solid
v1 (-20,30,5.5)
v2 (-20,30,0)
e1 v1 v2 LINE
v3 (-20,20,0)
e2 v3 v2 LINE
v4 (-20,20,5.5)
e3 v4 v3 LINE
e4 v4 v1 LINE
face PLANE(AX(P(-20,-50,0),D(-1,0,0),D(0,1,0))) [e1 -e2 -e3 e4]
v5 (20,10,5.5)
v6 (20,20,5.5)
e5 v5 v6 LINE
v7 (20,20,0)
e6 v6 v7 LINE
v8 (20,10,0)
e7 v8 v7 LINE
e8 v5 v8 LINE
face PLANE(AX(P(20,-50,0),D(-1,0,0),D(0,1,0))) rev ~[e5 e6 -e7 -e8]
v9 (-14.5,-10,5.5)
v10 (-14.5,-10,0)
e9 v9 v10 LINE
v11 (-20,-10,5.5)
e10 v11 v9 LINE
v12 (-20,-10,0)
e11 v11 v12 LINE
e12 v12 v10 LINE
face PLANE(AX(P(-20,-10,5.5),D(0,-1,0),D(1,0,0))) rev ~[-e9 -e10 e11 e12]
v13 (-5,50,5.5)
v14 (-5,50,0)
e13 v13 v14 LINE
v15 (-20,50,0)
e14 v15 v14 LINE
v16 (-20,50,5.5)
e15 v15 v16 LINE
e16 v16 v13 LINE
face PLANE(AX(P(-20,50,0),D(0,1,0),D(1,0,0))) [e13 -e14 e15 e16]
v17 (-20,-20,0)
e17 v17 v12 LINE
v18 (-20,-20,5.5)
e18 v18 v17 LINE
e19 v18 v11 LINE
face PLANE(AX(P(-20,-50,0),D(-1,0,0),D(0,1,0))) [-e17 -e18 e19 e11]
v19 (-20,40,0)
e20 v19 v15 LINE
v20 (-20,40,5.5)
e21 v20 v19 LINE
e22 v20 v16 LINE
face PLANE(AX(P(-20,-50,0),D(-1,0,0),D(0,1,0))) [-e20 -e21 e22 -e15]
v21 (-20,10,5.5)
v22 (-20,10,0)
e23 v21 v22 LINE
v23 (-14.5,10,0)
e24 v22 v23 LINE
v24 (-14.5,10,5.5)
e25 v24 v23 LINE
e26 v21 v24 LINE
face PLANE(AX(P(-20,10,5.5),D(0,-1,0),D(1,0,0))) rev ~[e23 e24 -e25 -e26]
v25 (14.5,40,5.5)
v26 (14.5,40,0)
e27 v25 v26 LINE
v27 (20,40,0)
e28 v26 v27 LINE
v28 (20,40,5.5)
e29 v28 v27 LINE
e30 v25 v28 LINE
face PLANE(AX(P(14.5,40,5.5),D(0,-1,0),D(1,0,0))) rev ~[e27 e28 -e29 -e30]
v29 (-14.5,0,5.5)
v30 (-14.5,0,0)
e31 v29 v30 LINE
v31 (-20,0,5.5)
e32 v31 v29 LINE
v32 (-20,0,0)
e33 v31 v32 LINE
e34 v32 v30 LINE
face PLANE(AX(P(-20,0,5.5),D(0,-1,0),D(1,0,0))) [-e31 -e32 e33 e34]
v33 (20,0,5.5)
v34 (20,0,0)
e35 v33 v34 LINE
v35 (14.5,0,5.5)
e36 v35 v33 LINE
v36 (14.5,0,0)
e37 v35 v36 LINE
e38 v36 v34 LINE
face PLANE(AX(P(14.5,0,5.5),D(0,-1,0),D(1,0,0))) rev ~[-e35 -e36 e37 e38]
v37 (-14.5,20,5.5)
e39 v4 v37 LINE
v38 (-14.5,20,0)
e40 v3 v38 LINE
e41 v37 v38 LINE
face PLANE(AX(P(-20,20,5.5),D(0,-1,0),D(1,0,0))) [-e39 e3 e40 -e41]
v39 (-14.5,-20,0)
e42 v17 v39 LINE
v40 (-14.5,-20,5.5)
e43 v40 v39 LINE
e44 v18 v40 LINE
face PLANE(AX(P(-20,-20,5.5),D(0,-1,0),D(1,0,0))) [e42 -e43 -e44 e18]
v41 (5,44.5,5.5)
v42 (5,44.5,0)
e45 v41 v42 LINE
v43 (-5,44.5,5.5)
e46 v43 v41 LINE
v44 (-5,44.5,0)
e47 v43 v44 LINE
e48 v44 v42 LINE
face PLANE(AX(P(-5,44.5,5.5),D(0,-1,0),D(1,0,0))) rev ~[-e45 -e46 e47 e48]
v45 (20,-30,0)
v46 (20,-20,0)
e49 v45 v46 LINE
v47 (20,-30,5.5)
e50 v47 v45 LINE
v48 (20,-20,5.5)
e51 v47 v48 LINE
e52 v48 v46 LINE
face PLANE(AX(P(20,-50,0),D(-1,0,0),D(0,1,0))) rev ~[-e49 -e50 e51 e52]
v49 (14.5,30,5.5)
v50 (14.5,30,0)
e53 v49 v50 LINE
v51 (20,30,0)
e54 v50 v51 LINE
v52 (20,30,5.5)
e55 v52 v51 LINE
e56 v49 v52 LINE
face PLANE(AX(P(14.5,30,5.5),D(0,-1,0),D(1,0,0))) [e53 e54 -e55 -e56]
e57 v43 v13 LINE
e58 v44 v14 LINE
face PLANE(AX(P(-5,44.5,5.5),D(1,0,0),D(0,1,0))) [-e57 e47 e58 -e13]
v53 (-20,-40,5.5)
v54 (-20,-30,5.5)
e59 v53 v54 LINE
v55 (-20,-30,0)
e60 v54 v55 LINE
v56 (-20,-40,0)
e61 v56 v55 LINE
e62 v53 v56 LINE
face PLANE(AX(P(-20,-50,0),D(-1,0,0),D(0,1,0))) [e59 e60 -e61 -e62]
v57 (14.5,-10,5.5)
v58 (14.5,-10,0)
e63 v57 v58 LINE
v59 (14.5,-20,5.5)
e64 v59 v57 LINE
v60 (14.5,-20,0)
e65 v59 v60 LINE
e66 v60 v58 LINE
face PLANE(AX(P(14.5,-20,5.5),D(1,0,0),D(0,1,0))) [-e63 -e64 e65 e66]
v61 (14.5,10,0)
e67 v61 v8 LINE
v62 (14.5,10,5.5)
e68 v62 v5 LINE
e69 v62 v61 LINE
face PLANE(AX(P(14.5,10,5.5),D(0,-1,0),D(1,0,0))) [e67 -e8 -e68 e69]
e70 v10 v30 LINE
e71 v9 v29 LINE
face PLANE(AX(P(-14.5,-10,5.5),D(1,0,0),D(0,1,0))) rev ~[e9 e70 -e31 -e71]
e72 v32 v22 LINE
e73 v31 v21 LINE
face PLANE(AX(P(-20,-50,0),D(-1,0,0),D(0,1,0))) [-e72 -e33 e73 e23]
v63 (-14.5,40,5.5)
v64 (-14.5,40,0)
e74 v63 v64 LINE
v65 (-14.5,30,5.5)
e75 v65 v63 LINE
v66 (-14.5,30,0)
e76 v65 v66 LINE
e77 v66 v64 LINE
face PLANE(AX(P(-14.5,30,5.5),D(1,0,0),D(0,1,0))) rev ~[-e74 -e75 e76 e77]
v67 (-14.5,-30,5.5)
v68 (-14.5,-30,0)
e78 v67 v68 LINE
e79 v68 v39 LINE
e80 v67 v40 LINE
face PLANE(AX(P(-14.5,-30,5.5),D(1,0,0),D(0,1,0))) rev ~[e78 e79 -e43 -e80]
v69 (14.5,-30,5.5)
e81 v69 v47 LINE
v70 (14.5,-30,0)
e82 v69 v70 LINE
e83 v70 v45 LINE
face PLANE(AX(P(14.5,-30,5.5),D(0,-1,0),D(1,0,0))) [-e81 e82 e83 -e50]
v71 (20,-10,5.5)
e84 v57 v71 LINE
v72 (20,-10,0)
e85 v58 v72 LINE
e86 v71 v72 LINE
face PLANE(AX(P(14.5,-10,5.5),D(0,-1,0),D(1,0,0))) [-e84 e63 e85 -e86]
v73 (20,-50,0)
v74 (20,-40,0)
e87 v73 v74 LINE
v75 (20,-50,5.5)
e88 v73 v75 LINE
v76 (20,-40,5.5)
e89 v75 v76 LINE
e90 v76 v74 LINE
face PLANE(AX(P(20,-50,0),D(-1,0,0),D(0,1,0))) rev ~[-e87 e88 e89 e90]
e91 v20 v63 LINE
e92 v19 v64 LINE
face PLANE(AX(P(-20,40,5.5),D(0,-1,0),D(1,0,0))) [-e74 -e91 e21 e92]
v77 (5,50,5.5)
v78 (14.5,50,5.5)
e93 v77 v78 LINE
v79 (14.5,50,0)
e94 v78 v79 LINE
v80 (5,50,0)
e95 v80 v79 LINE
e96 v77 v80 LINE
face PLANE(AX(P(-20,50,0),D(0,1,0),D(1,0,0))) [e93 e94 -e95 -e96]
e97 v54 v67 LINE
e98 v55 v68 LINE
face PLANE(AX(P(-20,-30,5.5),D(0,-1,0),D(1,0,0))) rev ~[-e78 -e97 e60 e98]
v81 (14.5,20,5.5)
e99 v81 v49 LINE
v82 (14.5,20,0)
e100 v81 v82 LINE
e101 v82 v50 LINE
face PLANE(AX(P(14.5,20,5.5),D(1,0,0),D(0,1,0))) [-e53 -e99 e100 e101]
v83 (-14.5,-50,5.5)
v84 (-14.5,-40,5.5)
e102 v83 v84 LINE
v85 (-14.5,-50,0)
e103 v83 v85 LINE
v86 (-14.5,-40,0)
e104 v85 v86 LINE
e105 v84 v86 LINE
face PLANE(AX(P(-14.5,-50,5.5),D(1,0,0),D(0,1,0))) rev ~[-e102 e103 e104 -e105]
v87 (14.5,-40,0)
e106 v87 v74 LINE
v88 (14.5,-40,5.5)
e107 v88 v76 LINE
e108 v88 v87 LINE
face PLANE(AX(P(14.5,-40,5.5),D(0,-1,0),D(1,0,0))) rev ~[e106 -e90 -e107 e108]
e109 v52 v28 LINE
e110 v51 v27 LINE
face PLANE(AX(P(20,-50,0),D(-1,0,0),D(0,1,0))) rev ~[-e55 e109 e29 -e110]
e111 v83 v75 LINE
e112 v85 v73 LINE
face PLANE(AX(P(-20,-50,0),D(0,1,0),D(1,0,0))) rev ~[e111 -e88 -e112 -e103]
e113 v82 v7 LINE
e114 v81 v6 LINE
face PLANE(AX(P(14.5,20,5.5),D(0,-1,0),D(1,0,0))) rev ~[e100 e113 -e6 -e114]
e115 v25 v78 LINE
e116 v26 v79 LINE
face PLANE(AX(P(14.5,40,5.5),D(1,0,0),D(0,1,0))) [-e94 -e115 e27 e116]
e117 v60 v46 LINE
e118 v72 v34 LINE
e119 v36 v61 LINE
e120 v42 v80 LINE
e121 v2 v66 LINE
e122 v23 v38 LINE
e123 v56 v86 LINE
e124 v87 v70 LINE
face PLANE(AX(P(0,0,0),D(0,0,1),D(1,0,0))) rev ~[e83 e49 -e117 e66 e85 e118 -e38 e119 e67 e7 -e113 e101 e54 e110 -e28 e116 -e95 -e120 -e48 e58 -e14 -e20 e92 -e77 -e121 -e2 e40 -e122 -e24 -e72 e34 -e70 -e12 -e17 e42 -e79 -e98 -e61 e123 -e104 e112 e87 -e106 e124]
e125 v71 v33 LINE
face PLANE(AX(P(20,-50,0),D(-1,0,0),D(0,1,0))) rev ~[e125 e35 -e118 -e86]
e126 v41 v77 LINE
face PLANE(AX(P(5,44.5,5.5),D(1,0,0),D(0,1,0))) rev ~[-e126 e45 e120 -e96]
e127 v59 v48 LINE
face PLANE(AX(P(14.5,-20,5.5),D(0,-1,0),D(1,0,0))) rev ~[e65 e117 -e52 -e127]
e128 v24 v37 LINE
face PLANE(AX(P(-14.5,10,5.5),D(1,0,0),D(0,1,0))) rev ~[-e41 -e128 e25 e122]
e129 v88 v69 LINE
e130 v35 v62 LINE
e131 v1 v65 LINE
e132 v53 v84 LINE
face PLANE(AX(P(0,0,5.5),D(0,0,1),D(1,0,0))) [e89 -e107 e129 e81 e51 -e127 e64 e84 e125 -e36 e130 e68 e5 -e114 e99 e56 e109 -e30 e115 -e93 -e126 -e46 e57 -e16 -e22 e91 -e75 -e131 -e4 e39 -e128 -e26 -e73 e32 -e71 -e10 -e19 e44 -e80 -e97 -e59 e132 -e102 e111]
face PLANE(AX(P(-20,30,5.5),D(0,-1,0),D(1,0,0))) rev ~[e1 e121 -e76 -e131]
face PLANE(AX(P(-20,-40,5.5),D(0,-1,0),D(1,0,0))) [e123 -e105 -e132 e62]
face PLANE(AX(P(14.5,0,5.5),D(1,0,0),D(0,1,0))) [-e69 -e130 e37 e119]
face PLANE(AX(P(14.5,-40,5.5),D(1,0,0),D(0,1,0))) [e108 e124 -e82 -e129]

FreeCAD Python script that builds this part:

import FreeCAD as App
import Part
import Sketcher

doc = App.newDocument("Part")
body = doc.addObject("PartDesign::Body", "Body")

# Sketch on XY plane
sketch1 = doc.addObject("Sketcher::SketchObject", "Sketch")
body.addObject(sketch1)
sketch1.AttachmentSupport = (doc.XY_Plane, [""])
sketch1.MapMode = "FlatFace"
sketch1.addGeometry(Part.LineSegment(App.Vector(-20, 50, 0), App.Vector(-20, -50, 0)), False)
sketch1.addGeometry(Part.LineSegment(App.Vector(-20, -50, 0), App.Vector(20, -50, 0)), False)
sketch1.addGeometry(Part.LineSegment(App.Vector(20, -50, 0), App.Vector(20, 50, 0)), False)
sketch1.addGeometry(Part.LineSegment(App.Vector(20, 50, 0), App.Vector(-20, 50, 0)), False)
sketch1.addConstraint(Sketcher.Constraint("Coincident", 0, 2, 1, 1))
sketch1.addConstraint(Sketcher.Constraint("Coincident", 1, 2, 2, 1))
sketch1.addConstraint(Sketcher.Constraint("Coincident", 2, 2, 3, 1))
sketch1.addConstraint(Sketcher.Constraint("Coincident", 3, 2, 0, 1))
sketch1.addConstraint(Sketcher.Constraint("Vertical", 0))
sketch1.addConstraint(Sketcher.Constraint("Horizontal", 1))
sketch1.addConstraint(Sketcher.Constraint("Vertical", 2))
sketch1.addConstraint(Sketcher.Constraint("Horizontal", 3))
sketch1.addConstraint(Sketcher.Constraint("Symmetric", 0, 2, 2, 2, -1, 1))
sketch1.addConstraint(Sketcher.Constraint("DistanceX", 1, 1, 1, 2, 40.0))
sketch1.addConstraint(Sketcher.Constraint("DistanceY", 0, 2, 0, 1, 100.0))
pad1 = doc.addObject("PartDesign::Pad", "Pad")
body.addObject(pad1)
pad1.Profile = sketch1
pad1.Length = 5.5

# Sketch on XY plane
sketch2 = doc.addObject("Sketcher::SketchObject", "Sketch001")
body.addObject(sketch2)
sketch2.AttachmentSupport = (doc.XY_Plane, [""])
sketch2.MapMode = "FlatFace"
sketch2.AttachmentOffset = App.Placement(App.Vector(0, 0, 5.5), App.Rotation())
sketch2.addGeometry(Part.LineSegment(App.Vector(-20, -40, 0), App.Vector(-20, -50, 0)), False)
sketch2.addGeometry(Part.LineSegment(App.Vector(-20, -50, 0), App.Vector(-14.5, -50, 0)), False)
sketch2.addGeometry(Part.LineSegment(App.Vector(-14.5, -50, 0), App.Vector(-14.5, -40, 0)), False)
sketch2.addGeometry(Part.LineSegment(App.Vector(-14.5, -40, 0), App.Vector(-20, -40, 0)), False)
sketch2.addGeometry(Part.LineSegment(App.Vector(14.5, -30, 0), App.Vector(14.5, -40, 0)), False)
sketch2.addGeometry(Part.LineSegment(App.Vector(14.5, -40, 0), App.Vector(20, -40, 0)), False)
sketch2.addGeometry(Part.LineSegment(App.Vector(20, -40, 0), App.Vector(20, -30, 0)), False)
sketch2.addGeometry(Part.LineSegment(App.Vector(20, -30, 0), App.Vector(14.5, -30, 0)), False)
sketch2.addGeometry(Part.LineSegment(App.Vector(-20, -20, 0), App.Vector(-20, -30, 0)), False)
sketch2.addGeometry(Part.LineSegment(App.Vector(-20, -30, 0), App.Vector(-14.5, -30, 0)), False)
sketch2.addGeometry(Part.LineSegment(App.Vector(-14.5, -30, 0), App.Vector(-14.5, -20, 0)), False)
sketch2.addGeometry(Part.LineSegment(App.Vector(-14.5, -20, 0), App.Vector(-20, -20, 0)), False)
sketch2.addGeometry(Part.LineSegment(App.Vector(14.5, -10, 0), App.Vector(14.5, -20, 0)), False)
sketch2.addGeometry(Part.LineSegment(App.Vector(14.5, -20, 0), App.Vector(20, -20, 0)), False)
sketch2.addGeometry(Part.LineSegment(App.Vector(20, -20, 0), App.Vector(20, -10, 0)), False)
sketch2.addGeometry(Part.LineSegment(App.Vector(20, -10, 0), App.Vector(14.5, -10, 0)), False)
sketch2.addGeometry(Part.LineSegment(App.Vector(-20, 0, 0), App.Vector(-20, -10, 0)), False)
sketch2.addGeometry(Part.LineSegment(App.Vector(-20, -10, 0), App.Vector(-14.5, -10, 0)), False)
sketch2.addGeometry(Part.LineSegment(App.Vector(-14.5, -10, 0), App.Vector(-14.5, 0, 0)), False)
sketch2.addGeometry(Part.LineSegment(App.Vector(-14.5, 0, 0), App.Vector(-20, 0, 0)), False)
sketch2.addGeometry(Part.LineSegment(App.Vector(14.5, 10, 0), App.Vector(14.5, 0, 0)), False)
sketch2.addGeometry(Part.LineSegment(App.Vector(14.5, 0, 0), App.Vector(20, 0, 0)), False)
sketch2.addGeometry(Part.LineSegment(App.Vector(20, 0, 0), App.Vector(20, 10, 0)), False)
sketch2.addGeometry(Part.LineSegment(App.Vector(20, 10, 0), App.Vector(14.5, 10, 0)), False)
sketch2.addGeometry(Part.LineSegment(App.Vector(-20, 20, 0), App.Vector(-20, 10, 0)), False)
sketch2.addGeometry(Part.LineSegment(App.Vector(-20, 10, 0), App.Vector(-14.5, 10, 0)), False)
sketch2.addGeometry(Part.LineSegment(App.Vector(-14.5, 10, 0), App.Vector(-14.5, 20, 0)), False)
sketch2.addGeometry(Part.LineSegment(App.Vector(-14.5, 20, 0), App.Vector(-20, 20, 0)), False)
sketch2.addGeometry(Part.LineSegment(App.Vector(14.5, 30, 0), App.Vector(14.5, 20, 0)), False)
sketch2.addGeometry(Part.LineSegment(App.Vector(14.5, 20, 0), App.Vector(20, 20, 0)), False)
sketch2.addGeometry(Part.LineSegment(App.Vector(20, 20, 0), App.Vector(20, 30, 0)), False)
sketch2.addGeometry(Part.LineSegment(App.Vector(20, 30, 0), App.Vector(14.5, 30, 0)), False)
sketch2.addGeometry(Part.LineSegment(App.Vector(-20, 40, 0), App.Vector(-20, 30, 0)), False)
sketch2.addGeometry(Part.LineSegment(App.Vector(-20, 30, 0), App.Vector(-14.5, 30, 0)), False)
sketch2.addGeometry(Part.LineSegment(App.Vector(-14.5, 30, 0), App.Vector(-14.5, 40, 0)), False)
sketch2.addGeometry(Part.LineSegment(App.Vector(-14.5, 40, 0), App.Vector(-20, 40, 0)), False)
sketch2.addGeometry(Part.LineSegment(App.Vector(14.5, 50, 0), App.Vector(14.5, 40, 0)), False)
sketch2.addGeometry(Part.LineSegment(App.Vector(14.5, 40, 0), App.Vector(20, 40, 0)), False)
sketch2.addGeometry(Part.LineSegment(App.Vector(20, 40, 0), App.Vector(20, 50, 0)), False)
sketch2.addGeometry(Part.LineSegment(App.Vector(20, 50, 0), App.Vector(14.5, 50, 0)), False)
sketch2.addConstraint(Sketcher.Constraint("Coincident", 0, 2, 1, 1))
sketch2.addConstraint(Sketcher.Constraint("Coincident", 1, 2, 2, 1))
sketch2.addConstraint(Sketcher.Constraint("Coincident", 2, 2, 3, 1))
sketch2.addConstraint(Sketcher.Constraint("Coincident", 3, 2, 0, 1))
sketch2.addConstraint(Sketcher.Constraint("Coincident", 4, 2, 5, 1))
sketch2.addConstraint(Sketcher.Constraint("Coincident", 5, 2, 6, 1))
sketch2.addConstraint(Sketcher.Constraint("Coincident", 6, 2, 7, 1))
sketch2.addConstraint(Sketcher.Constraint("Coincident", 7, 2, 4, 1))
sketch2.addConstraint(Sketcher.Constraint("Coincident", 8, 2, 9, 1))
sketch2.addConstraint(Sketcher.Constraint("Coincident", 9, 2, 10, 1))
sketch2.addConstraint(Sketcher.Constraint("Coincident", 10, 2, 11, 1))
sketch2.addConstraint(Sketcher.Constraint("Coincident", 11, 2, 8, 1))
sketch2.addConstraint(Sketcher.Constraint("Coincident", 12, 2, 13, 1))
sketch2.addConstraint(Sketcher.Constraint("Coincident", 13, 2, 14, 1))
sketch2.addConstraint(Sketcher.Constraint("Coincident", 14, 2, 15, 1))
sketch2.addConstraint(Sketcher.Constraint("Coincident", 15, 2, 12, 1))
sketch2.addConstraint(Sketcher.Constraint("Coincident", 16, 2, 17, 1))
sketch2.addConstraint(Sketcher.Constraint("Coincident", 17, 2, 18, 1))
sketch2.addConstraint(Sketcher.Constraint("Coincident", 18, 2, 19, 1))
sketch2.addConstraint(Sketcher.Constraint("Coincident", 19, 2, 16, 1))
sketch2.addConstraint(Sketcher.Constraint("Coincident", 20, 2, 21, 1))
sketch2.addConstraint(Sketcher.Constraint("Coincident", 21, 2, 22, 1))
sketch2.addConstraint(Sketcher.Constraint("Coincident", 22, 2, 23, 1))
sketch2.addConstraint(Sketcher.Constraint("Coincident", 23, 2, 20, 1))
sketch2.addConstraint(Sketcher.Constraint("Coincident", 24, 2, 25, 1))
sketch2.addConstraint(Sketcher.Constraint("Coincident", 25, 2, 26, 1))
sketch2.addConstraint(Sketcher.Constraint("Coincident", 26, 2, 27, 1))
sketch2.addConstraint(Sketcher.Constraint("Coincident", 27, 2, 24, 1))
sketch2.addConstraint(Sketcher.Constraint("Coincident", 28, 2, 29, 1))
sketch2.addConstraint(Sketcher.Constraint("Coincident", 29, 2, 30, 1))
sketch2.addConstraint(Sketcher.Constraint("Coincident", 30, 2, 31, 1))
sketch2.addConstraint(Sketcher.Constraint("Coincident", 31, 2, 28, 1))
sketch2.addConstraint(Sketcher.Constraint("Coincident", 32, 2, 33, 1))
sketch2.addConstraint(Sketcher.Constraint("Coincident", 33, 2, 34, 1))
sketch2.addConstraint(Sketcher.Constraint("Coincident", 34, 2, 35, 1))
sketch2.addConstraint(Sketcher.Constraint("Coincident", 35, 2, 32, 1))
sketch2.addConstraint(Sketcher.Constraint("Coincident", 36, 2, 37, 1))
sketch2.addConstraint(Sketcher.Constraint("Coincident", 37, 2, 38, 1))
sketch2.addConstraint(Sketcher.Constraint("Coincident", 38, 2, 39, 1))
sketch2.addConstraint(Sketcher.Constraint("Coincident", 39, 2, 36, 1))
sketch2.addConstraint(Sketcher.Constraint("Vertical", 0))
sketch2.addConstraint(Sketcher.Constraint("Horizontal", 1))
sketch2.addConstraint(Sketcher.Constraint("Vertical", 2))
sketch2.addConstraint(Sketcher.Constraint("Horizontal", 3))
sketch2.addConstraint(Sketcher.Constraint("Vertical", 4))
sketch2.addConstraint(Sketcher.Constraint("Horizontal", 5))
sketch2.addConstraint(Sketcher.Constraint("Vertical", 6))
sketch2.addConstraint(Sketcher.Constraint("Horizontal", 7))
sketch2.addConstraint(Sketcher.Constraint("Vertical", 8))
sketch2.addConstraint(Sketcher.Constraint("Horizontal", 9))
sketch2.addConstraint(Sketcher.Constraint("Vertical", 10))
sketch2.addConstraint(Sketcher.Constraint("Horizontal", 11))
sketch2.addConstraint(Sketcher.Constraint("Vertical", 12))
sketch2.addConstraint(Sketcher.Constraint("Horizontal", 13))
sketch2.addConstraint(Sketcher.Constraint("Vertical", 14))
sketch2.addConstraint(Sketcher.Constraint("Horizontal", 15))
sketch2.addConstraint(Sketcher.Constraint("Vertical", 16))
sketch2.addConstraint(Sketcher.Constraint("Horizontal", 17))
sketch2.addConstraint(Sketcher.Constraint("Vertical", 18))
sketch2.addConstraint(Sketcher.Constraint("Horizontal", 19))
sketch2.addConstraint(Sketcher.Constraint("Vertical", 20))
sketch2.addConstraint(Sketcher.Constraint("Horizontal", 21))
sketch2.addConstraint(Sketcher.Constraint("Vertical", 22))
sketch2.addConstraint(Sketcher.Constraint("Horizontal", 23))
sketch2.addConstraint(Sketcher.Constraint("Vertical", 24))
sketch2.addConstraint(Sketcher.Constraint("Horizontal", 25))
sketch2.addConstraint(Sketcher.Constraint("Vertical", 26))
sketch2.addConstraint(Sketcher.Constraint("Horizontal", 27))
sketch2.addConstraint(Sketcher.Constraint("Vertical", 28))
sketch2.addConstraint(Sketcher.Constraint("Horizontal", 29))
sketch2.addConstraint(Sketcher.Constraint("Vertical", 30))
sketch2.addConstraint(Sketcher.Constraint("Horizontal", 31))
sketch2.addConstraint(Sketcher.Constraint("Vertical", 32))
sketch2.addConstraint(Sketcher.Constraint("Horizontal", 33))
sketch2.addConstraint(Sketcher.Constraint("Vertical", 34))
sketch2.addConstraint(Sketcher.Constraint("Horizontal", 35))
sketch2.addConstraint(Sketcher.Constraint("Vertical", 36))
sketch2.addConstraint(Sketcher.Constraint("Horizontal", 37))
sketch2.addConstraint(Sketcher.Constraint("Vertical", 38))
sketch2.addConstraint(Sketcher.Constraint("Horizontal", 39))
sketch2.addConstraint(Sketcher.Constraint("Symmetric", 18, 2, 20, 2, -1, 1))
sketch2.addConstraint(Sketcher.Constraint("Symmetric", 16, 2, 22, 2, -1, 1))
sketch2.addConstraint(Sketcher.Constraint("Symmetric", 14, 2, 24, 2, -1, 1))
sketch2.addConstraint(Sketcher.Constraint("Symmetric", 12, 2, 26, 2, -1, 1))
sketch2.addConstraint(Sketcher.Constraint("Symmetric", 10, 2, 28, 2, -1, 1))
sketch2.addConstraint(Sketcher.Constraint("Symmetric", 8, 2, 30, 2, -1, 1))
sketch2.addConstraint(Sketcher.Constraint("Symmetric", 6, 2, 32, 2, -1, 1))
sketch2.addConstraint(Sketcher.Constraint("Symmetric", 4, 2, 34, 2, -1, 1))
sketch2.addConstraint(Sketcher.Constraint("Symmetric", 2, 2, 36, 2, -1, 1))
sketch2.addConstraint(Sketcher.Constraint("Symmetric", 0, 2, 38, 2, -1, 1))
sketch2.addConstraint(Sketcher.Constraint("Symmetric", 2, 2, 4, 2, -2))
sketch2.addConstraint(Sketcher.Constraint("Symmetric", 6, 2, 8, 2, -2))
sketch2.addConstraint(Sketcher.Constraint("Symmetric", 10, 2, 12, 2, -2))
sketch2.addConstraint(Sketcher.Constraint("Symmetric", 14, 2, 16, 2, -2))
sketch2.addConstraint(Sketcher.Constraint("PointOnObject", 18, 2, -1))
sketch2.addConstraint(Sketcher.Constraint("Vertical", 3, 2, 8, 2))
sketch2.addConstraint(Sketcher.Constraint("Vertical", 2, 2, 9, 2))
sketch2.addConstraint(Sketcher.Constraint("Vertical", 6, 2, 13, 2))
sketch2.addConstraint(Sketcher.Constraint("Vertical", 10, 2, 17, 2))
sketch2.addConstraint(Sketcher.Constraint("Equal", 2, 4))
sketch2.addConstraint(Sketcher.Constraint("Equal", 6, 8))
sketch2.addConstraint(Sketcher.Constraint("Equal", 10, 12))
sketch2.addConstraint(Sketcher.Constraint("Equal", 14, 16))
sketch2.addConstraint(Sketcher.Constraint("DistanceY", 0, 2, 0, 1, 10.0))
sketch2.addConstraint(Sketcher.Constraint("DistanceX", 1, 1, 1, 2, 5.5))
sketch2.addConstraint(Sketcher.Constraint("DistanceX", 0, 2, -1, 1, 20.0))
pocket1 = doc.addObject("PartDesign::Pocket", "Pocket")
body.addObject(pocket1)
pocket1.Profile = sketch2
pocket1.Type = "ThroughAll"

# Sketch on XY plane
sketch3 = doc.addObject("Sketcher::SketchObject", "Sketch002")
body.addObject(sketch3)
sketch3.AttachmentSupport = (doc.XY_Plane, [""])
sketch3.MapMode = "FlatFace"
sketch3.AttachmentOffset = App.Placement(App.Vector(0, 0, 5.5), App.Rotation())
sketch3.addGeometry(Part.LineSegment(App.Vector(-5, 50, 0), App.Vector(-5, 44.5, 0)), False)
sketch3.addGeometry(Part.LineSegment(App.Vector(-5, 44.5, 0), App.Vector(5, 44.5, 0)), False)
sketch3.addGeometry(Part.LineSegment(App.Vector(5, 44.5, 0), App.Vector(5, 50, 0)), False)
sketch3.addGeometry(Part.LineSegment(App.Vector(5, 50, 0), App.Vector(-5, 50, 0)), False)
sketch3.addConstraint(Sketcher.Constraint("Coincident", 0, 2, 1, 1))
sketch3.addConstraint(Sketcher.Constraint("Coincident", 1, 2, 2, 1))
sketch3.addConstraint(Sketcher.Constraint("Coincident", 2, 2, 3, 1))
sketch3.addConstraint(Sketcher.Constraint("Coincident", 3, 2, 0, 1))
sketch3.addConstraint(Sketcher.Constraint("Vertical", 0))
sketch3.addConstraint(Sketcher.Constraint("Horizontal", 1))
sketch3.addConstraint(Sketcher.Constraint("Vertical", 2))
sketch3.addConstraint(Sketcher.Constraint("Horizontal", 3))
sketch3.addConstraint(Sketcher.Constraint("DistanceX", 1, 1, 1, 2, 10.0))
sketch3.addConstraint(Sketcher.Constraint("DistanceY", 0, 2, 0, 1, 5.5))
sketch3.addConstraint(Sketcher.Constraint("DistanceX", 0, 2, -1, 1, 5.0))
sketch3.addConstraint(Sketcher.Constraint("DistanceY", -1, 1, 2, 2, 50.0))
pocket2 = doc.addObject("PartDesign::Pocket", "Pocket001")
body.addObject(pocket2)
pocket2.Profile = sketch3
pocket2.Type = "ThroughAll"

doc.recompute()
